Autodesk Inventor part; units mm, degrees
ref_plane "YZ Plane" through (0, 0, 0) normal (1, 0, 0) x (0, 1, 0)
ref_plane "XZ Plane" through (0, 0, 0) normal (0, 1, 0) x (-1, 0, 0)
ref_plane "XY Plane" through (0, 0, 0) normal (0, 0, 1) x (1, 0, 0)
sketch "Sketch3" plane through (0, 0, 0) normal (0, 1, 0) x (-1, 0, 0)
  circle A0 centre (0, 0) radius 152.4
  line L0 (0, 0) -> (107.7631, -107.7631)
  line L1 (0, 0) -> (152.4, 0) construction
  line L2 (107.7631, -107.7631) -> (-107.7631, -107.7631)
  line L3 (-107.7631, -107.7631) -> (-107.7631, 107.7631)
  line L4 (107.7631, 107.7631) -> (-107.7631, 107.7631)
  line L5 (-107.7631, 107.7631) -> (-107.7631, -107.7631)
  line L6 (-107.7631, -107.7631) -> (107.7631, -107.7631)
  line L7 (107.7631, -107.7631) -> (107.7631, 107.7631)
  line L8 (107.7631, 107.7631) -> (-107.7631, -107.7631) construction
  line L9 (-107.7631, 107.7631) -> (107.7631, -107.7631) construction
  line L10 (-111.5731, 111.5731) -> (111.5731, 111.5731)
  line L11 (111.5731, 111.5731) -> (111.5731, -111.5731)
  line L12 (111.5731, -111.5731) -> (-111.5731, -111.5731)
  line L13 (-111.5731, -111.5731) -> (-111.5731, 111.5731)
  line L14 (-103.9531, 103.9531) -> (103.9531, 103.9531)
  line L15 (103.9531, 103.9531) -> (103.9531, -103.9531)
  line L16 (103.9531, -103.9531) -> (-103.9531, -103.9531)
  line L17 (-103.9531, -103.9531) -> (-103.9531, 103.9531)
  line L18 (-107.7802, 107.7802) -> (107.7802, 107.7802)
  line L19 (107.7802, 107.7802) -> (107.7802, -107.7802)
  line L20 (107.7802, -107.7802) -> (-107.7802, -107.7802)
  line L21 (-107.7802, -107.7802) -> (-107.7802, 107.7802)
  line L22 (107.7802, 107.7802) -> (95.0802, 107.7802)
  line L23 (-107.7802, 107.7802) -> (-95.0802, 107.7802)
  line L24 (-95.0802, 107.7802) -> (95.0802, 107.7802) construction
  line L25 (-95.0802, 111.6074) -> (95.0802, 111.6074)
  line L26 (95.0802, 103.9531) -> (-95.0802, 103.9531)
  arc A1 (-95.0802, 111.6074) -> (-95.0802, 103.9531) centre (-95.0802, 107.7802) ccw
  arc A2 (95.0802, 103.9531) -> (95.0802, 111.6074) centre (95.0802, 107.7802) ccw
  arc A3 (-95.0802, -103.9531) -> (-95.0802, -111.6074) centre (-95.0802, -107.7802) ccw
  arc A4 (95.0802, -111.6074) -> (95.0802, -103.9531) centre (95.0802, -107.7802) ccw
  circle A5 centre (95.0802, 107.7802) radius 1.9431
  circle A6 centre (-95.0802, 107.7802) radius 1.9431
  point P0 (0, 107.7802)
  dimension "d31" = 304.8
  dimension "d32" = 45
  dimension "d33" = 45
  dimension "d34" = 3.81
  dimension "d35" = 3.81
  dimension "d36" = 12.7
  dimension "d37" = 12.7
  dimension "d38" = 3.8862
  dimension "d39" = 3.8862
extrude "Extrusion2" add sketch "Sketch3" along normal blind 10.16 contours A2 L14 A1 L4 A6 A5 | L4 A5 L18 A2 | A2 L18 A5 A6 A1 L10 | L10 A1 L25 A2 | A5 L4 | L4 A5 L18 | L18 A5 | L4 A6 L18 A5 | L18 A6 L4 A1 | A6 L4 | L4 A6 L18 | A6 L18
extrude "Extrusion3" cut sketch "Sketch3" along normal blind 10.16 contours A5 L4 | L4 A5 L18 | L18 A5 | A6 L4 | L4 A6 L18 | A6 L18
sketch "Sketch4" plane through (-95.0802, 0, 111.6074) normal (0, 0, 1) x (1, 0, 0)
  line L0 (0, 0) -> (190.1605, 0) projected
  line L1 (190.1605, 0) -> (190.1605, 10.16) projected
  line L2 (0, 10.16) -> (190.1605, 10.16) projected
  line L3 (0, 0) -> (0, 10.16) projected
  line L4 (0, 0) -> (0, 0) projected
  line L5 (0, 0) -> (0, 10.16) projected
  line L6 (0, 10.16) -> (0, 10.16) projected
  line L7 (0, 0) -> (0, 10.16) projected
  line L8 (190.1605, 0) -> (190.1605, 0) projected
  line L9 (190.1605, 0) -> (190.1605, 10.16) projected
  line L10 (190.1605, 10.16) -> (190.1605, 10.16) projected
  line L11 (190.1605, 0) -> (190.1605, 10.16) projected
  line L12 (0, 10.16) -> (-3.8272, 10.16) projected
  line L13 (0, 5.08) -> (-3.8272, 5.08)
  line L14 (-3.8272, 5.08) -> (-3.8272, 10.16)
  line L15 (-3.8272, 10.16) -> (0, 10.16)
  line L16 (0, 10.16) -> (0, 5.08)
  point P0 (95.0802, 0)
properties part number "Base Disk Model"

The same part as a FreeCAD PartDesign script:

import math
import FreeCAD as App
import Part
import Sketcher
from FreeCAD import Vector
Q = App.Units.Quantity

doc = App.newDocument("Part")
body = doc.addObject("PartDesign::Body", "Body")

# Sketch on XZ plane
sketch1 = body.newObject("Sketcher::SketchObject", "Sketch")
sketch1.AttachmentSupport = (doc.getObject("XZ_Plane"), [""])
sketch1.MapMode = "FlatFace"
sketch1.addGeometry([
    Part.ArcOfCircle(Part.Circle(Vector(-95.1, 107.8, 0), Vector(0, 0, 1), 3.8), math.radians(90), math.radians(270)),
    Part.LineSegment(Vector(-95.1, 111.6, 0), Vector(95.1, 111.6, 0)),
    Part.ArcOfCircle(Part.Circle(Vector(95.1, 107.8, 0), Vector(0, 0, 1), 3.8), math.radians(-90), math.radians(90)),
    Part.LineSegment(Vector(95.1, 104, 0), Vector(-95.1, 104, 0)),
], False)
sketch1.addConstraint([
    Sketcher.Constraint("Tangent", 0, 1, 1, 1),
    Sketcher.Constraint("Tangent", 1, 2, 2, 2),
    Sketcher.Constraint("Tangent", 2, 1, 3, 1),
    Sketcher.Constraint("Tangent", 3, 2, 0, 2),
    Sketcher.Constraint("Horizontal", 1),
    Sketcher.Constraint("Horizontal", 3),
    Sketcher.Constraint("Radius", 0, Q("3.827 mm")),
    Sketcher.Constraint("DistanceY", -1, 1, 0, 1, Q("4.394 in")),
    Sketcher.Constraint("DistanceX", 1, 1, 1, 2, Q("190.1604 mm")),
    Sketcher.Constraint("DistanceX", 0, 3, -1, 1, Q("95.0802 mm")),
])
pad1 = body.newObject("PartDesign::Pad", "Pad")
pad1.Profile = sketch1
pad1.Length = Q("0.4 in")
pad1.Reversed = True

# Sketch on XZ plane
sketch2 = body.newObject("Sketcher::SketchObject", "Sketch001")
sketch2.AttachmentSupport = (doc.getObject("XZ_Plane"), [""])
sketch2.MapMode = "FlatFace"
sketch2.addGeometry([
    Part.Circle(Vector(-95.1, 107.8, 0), Vector(0, 0, 1), 1.9),
    Part.Circle(Vector(95.1, 107.8, 0), Vector(0, 0, 1), 1.9),
], False)
sketch2.addConstraint([
    Sketcher.Constraint("Equal", 0, 1),
    Sketcher.Constraint("Symmetric", 0, 3, 1, 3, -2),
    Sketcher.Constraint("Diameter", 0, Q("0.153 in")),
    Sketcher.Constraint("DistanceX", 0, 3, -1, 1, Q("95.0802 mm")),
    Sketcher.Constraint("DistanceY", -1, 1, 0, 3, Q("107.7802 mm")),
])
pocket1 = body.newObject("PartDesign::Pocket", "Pocket")
pocket1.Profile = sketch2
pocket1.Length = Q("0.4 in")

doc.recompute()
